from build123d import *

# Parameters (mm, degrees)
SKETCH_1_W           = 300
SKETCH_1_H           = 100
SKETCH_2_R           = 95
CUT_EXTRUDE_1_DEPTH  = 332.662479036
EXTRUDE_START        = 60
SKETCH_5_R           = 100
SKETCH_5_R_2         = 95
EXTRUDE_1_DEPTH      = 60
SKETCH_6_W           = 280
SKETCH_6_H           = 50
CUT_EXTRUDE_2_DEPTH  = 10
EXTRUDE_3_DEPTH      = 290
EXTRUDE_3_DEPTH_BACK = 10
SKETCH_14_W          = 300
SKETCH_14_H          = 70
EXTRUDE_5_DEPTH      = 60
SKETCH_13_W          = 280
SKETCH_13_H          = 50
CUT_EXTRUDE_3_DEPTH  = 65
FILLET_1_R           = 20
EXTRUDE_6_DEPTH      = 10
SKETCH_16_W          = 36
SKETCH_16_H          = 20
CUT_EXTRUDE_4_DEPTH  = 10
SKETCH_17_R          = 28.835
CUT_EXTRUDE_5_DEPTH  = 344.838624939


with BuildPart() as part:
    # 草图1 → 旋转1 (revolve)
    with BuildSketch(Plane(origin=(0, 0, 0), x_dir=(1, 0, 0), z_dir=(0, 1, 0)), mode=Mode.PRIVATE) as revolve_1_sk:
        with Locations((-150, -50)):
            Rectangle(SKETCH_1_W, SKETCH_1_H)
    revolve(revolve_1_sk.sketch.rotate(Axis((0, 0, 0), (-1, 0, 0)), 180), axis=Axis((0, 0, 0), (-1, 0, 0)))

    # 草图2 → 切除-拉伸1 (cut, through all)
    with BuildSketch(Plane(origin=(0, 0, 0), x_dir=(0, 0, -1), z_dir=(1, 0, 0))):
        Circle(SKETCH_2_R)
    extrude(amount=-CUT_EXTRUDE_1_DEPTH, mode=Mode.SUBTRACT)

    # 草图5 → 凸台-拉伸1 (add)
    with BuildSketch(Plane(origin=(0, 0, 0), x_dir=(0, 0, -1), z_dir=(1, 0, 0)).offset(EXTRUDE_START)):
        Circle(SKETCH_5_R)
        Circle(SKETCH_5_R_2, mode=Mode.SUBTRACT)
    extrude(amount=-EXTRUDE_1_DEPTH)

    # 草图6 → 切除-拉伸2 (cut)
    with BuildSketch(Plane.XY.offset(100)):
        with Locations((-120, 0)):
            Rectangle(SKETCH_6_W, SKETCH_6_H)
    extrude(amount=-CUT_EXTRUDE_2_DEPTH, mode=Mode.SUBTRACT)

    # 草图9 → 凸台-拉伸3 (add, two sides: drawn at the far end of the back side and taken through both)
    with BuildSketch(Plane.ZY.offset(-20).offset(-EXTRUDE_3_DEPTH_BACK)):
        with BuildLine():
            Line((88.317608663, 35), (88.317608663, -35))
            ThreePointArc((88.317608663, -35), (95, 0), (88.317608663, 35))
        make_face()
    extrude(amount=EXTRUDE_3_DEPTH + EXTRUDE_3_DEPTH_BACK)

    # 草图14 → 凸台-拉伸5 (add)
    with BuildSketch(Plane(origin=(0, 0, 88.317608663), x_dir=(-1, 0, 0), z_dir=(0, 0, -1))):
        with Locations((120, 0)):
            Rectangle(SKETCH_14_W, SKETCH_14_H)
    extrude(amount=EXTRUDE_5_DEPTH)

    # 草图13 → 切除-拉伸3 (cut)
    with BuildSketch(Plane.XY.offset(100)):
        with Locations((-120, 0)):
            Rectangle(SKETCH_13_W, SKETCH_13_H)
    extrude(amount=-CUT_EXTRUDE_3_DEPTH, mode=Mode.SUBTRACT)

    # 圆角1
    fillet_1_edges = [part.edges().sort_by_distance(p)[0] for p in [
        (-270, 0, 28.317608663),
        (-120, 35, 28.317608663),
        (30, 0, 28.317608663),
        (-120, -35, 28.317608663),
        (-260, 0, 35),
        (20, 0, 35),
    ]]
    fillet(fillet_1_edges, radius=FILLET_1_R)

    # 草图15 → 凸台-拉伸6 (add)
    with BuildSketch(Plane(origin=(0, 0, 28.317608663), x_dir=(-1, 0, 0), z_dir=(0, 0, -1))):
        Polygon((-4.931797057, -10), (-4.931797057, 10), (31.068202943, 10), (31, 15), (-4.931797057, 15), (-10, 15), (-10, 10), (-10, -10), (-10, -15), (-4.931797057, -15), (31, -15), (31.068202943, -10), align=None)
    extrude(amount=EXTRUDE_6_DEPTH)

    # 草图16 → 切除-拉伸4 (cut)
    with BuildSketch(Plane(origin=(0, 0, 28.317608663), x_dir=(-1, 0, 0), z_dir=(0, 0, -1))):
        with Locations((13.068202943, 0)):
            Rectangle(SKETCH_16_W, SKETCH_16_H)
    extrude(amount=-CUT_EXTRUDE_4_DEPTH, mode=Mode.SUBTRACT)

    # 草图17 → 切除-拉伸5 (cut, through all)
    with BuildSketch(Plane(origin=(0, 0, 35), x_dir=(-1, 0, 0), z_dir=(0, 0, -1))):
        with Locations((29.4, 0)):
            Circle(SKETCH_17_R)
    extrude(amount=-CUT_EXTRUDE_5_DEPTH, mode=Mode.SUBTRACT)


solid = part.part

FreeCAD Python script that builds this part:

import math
import FreeCAD as App
import Part
import Sketcher

V = App.Vector


def edges_at(feature, points):
    """Names of the edges that pass closest to the given points."""
    edges = feature.Shape.Edges
    near = lambda p: min(range(len(edges)), key=lambda i: edges[i].distToShape(Part.Vertex(*p))[0])
    return sorted({f"Edge{near(p) + 1}" for p in points})

doc = App.newDocument("Part")
params = doc.addObject("Spreadsheet::Sheet", "Params")
for row, (alias, value) in enumerate([
    ("sketch1_width", "300 mm"),
    ("sketch1_height", "100 mm"),
    ("revolution_angle", "360 deg"),
    ("sketch2_diameter", "190 mm"),
    ("sketch3_diameter", "200 mm"),
    ("sketch3_diameter2", "190 mm"),
    ("pad1_length", "60 mm"),
    ("sketch4_width", "280 mm"),
    ("sketch4_height", "50 mm"),
    ("pocket2_length", "10 mm"),
    ("sketch5_radius", "95 mm"),
    ("sketch5_width", "70 mm"),
    ("pad2_length", "290 mm"),
    ("pad2_length2", "10 mm"),
    ("sketch6_width", "300 mm"),
    ("sketch6_height", "70 mm"),
    ("pad3_length", "60 mm"),
    ("sketch7_width", "280 mm"),
    ("sketch7_height", "50 mm"),
    ("pocket3_length", "65 mm"),
    ("fillet_radius", "20 mm"),
    ("sketch8_width", "36 mm"),
    ("sketch8_width2", "41 mm"),
    ("sketch8_height", "20 mm"),
    ("sketch8_height2", "30 mm"),
    ("pad4_length", "10 mm"),
    ("sketch9_width", "36 mm"),
    ("sketch9_height", "20 mm"),
    ("pocket4_length", "10 mm"),
    ("sketch10_diameter", "57.67 mm"),
], start=1):
    params.set(f"A{row}", alias)
    params.set(f"B{row}", "=" + value)
    params.setAlias(f"B{row}", alias)

body = doc.addObject("PartDesign::Body", "Body")

sketch1 = doc.addObject("Sketcher::SketchObject", "Sketch")
body.addObject(sketch1)
sketch1.AttachmentSupport = (doc.XZ_Plane, [""])
sketch1.MapMode = "FlatFace"
sketch1.addGeometry(Part.LineSegment(V(-300, 0, 0), V(-300, 100, 0)), False)
sketch1.addGeometry(Part.LineSegment(V(-300, 100, 0), V(0, 100, 0)), False)
sketch1.addGeometry(Part.LineSegment(V(0, 100, 0), V(0, 0, 0)), False)
sketch1.addGeometry(Part.LineSegment(V(0, 0, 0), V(-300, 0, 0)), False)
sketch1.addConstraint(Sketcher.Constraint("Coincident", 0, 2, 1, 1))
sketch1.addConstraint(Sketcher.Constraint("Coincident", 1, 2, 2, 1))
sketch1.addConstraint(Sketcher.Constraint("Coincident", 2, 2, 3, 1))
sketch1.addConstraint(Sketcher.Constraint("Coincident", 3, 2, 0, 1))
sketch1.addConstraint(Sketcher.Constraint("Vertical", 0))
sketch1.addConstraint(Sketcher.Constraint("Horizontal", 1))
sketch1.addConstraint(Sketcher.Constraint("Vertical", 2))
sketch1.addConstraint(Sketcher.Constraint("Horizontal", 3))
sketch1.addConstraint(Sketcher.Constraint("Coincident", 2, 2, -1, 1))
sketch1.addConstraint(Sketcher.Constraint("DistanceX", 1, 1, 1, 2, 300.0))
sketch1.addConstraint(Sketcher.Constraint("DistanceY", 0, 1, 0, 2, 100.0))
sketch1.setExpression("Constraints[9]", "Params.sketch1_width")
sketch1.setExpression("Constraints[10]", "Params.sketch1_height")
revolution = doc.addObject("PartDesign::Revolution", "Revolution")
body.addObject(revolution)
revolution.Profile = sketch1
revolution.ReferenceAxis = (sketch1, ["H_Axis"])
revolution.setExpression("Angle", "Params.revolution_angle")

sketch2 = doc.addObject("Sketcher::SketchObject", "Sketch001")
body.addObject(sketch2)
sketch2.AttachmentSupport = (doc.YZ_Plane, [""])
sketch2.MapMode = "FlatFace"
sketch2.addGeometry(Part.Circle(V(0, 0, 0), V(0, 0, 1), 95), False)
sketch2.addConstraint(Sketcher.Constraint("Coincident", 0, 3, -1, 1))
sketch2.addConstraint(Sketcher.Constraint("Diameter", 0, 190.0))
sketch2.setExpression("Constraints[1]", "Params.sketch2_diameter")
pocket1 = doc.addObject("PartDesign::Pocket", "Pocket")
body.addObject(pocket1)
pocket1.Profile = sketch2
pocket1.Type = "ThroughAll"

sketch3 = doc.addObject("Sketcher::SketchObject", "Sketch002")
body.addObject(sketch3)
sketch3.AttachmentSupport = (doc.YZ_Plane, [""])
sketch3.MapMode = "FlatFace"
sketch3.AttachmentOffset = App.Placement(V(0, 0, 60), App.Rotation())
sketch3.addGeometry(Part.Circle(V(0, 0, 0), V(0, 0, 1), 100), False)
sketch3.addGeometry(Part.Circle(V(0, 0, 0), V(0, 0, 1), 95), False)
sketch3.addConstraint(Sketcher.Constraint("Coincident", 0, 3, -1, 1))
sketch3.addConstraint(Sketcher.Constraint("Coincident", 1, 3, -1, 1))
sketch3.addConstraint(Sketcher.Constraint("Diameter", 0, 200.0))
sketch3.addConstraint(Sketcher.Constraint("Diameter", 1, 190.0))
sketch3.setExpression("Constraints[2]", "Params.sketch3_diameter")
sketch3.setExpression("Constraints[3]", "Params.sketch3_diameter2")
pad1 = doc.addObject("PartDesign::Pad", "Pad")
body.addObject(pad1)
pad1.Profile = sketch3
pad1.setExpression("Length", "Params.pad1_length")
pad1.Reversed = True

sketch4 = doc.addObject("Sketcher::SketchObject", "Sketch003")
body.addObject(sketch4)
sketch4.AttachmentSupport = (doc.XY_Plane, [""])
sketch4.MapMode = "FlatFace"
sketch4.AttachmentOffset = App.Placement(V(0, 0, 100), App.Rotation())
sketch4.addGeometry(Part.LineSegment(V(-260, 25, 0), V(-260, -25, 0)), False)
sketch4.addGeometry(Part.LineSegment(V(-260, -25, 0), V(20, -25, 0)), False)
sketch4.addGeometry(Part.LineSegment(V(20, -25, 0), V(20, 25, 0)), False)
sketch4.addGeometry(Part.LineSegment(V(20, 25, 0), V(-260, 25, 0)), False)
sketch4.addConstraint(Sketcher.Constraint("Coincident", 0, 2, 1, 1))
sketch4.addConstraint(Sketcher.Constraint("Coincident", 1, 2, 2, 1))
sketch4.addConstraint(Sketcher.Constraint("Coincident", 2, 2, 3, 1))
sketch4.addConstraint(Sketcher.Constraint("Coincident", 3, 2, 0, 1))
sketch4.addConstraint(Sketcher.Constraint("Vertical", 0))
sketch4.addConstraint(Sketcher.Constraint("Horizontal", 1))
sketch4.addConstraint(Sketcher.Constraint("Vertical", 2))
sketch4.addConstraint(Sketcher.Constraint("Horizontal", 3))
sketch4.addConstraint(Sketcher.Constraint("DistanceX", 1, 1, 1, 2, 280.0))
sketch4.addConstraint(Sketcher.Constraint("DistanceY", 0, 2, 0, 1, 50.0))
sketch4.addConstraint(Sketcher.Constraint("DistanceX", 0, 2, -1, 1, 260.0))
sketch4.addConstraint(Sketcher.Constraint("DistanceY", 0, 2, -1, 1, 25.0))
sketch4.setExpression("Constraints[8]", "Params.sketch4_width")
sketch4.setExpression("Constraints[9]", "Params.sketch4_height")
pocket2 = doc.addObject("PartDesign::Pocket", "Pocket001")
body.addObject(pocket2)
pocket2.Profile = sketch4
pocket2.setExpression("Length", "Params.pocket2_length")

sketch5 = doc.addObject("Sketcher::SketchObject", "Sketch004")
body.addObject(sketch5)
sketch5.AttachmentSupport = (doc.YZ_Plane, [""])
sketch5.MapMode = "FlatFace"
sketch5.AttachmentOffset = App.Placement(V(0, 0, 20), App.Rotation())
sketch5.addGeometry(Part.LineSegment(V(35, 88, 0), V(-35, 88, 0)), False)
sketch5.addGeometry(Part.ArcOfCircle(Part.Circle(V(0, 0, 0), V(0, 0, 1), 95), math.radians(68), math.radians(112)), False)
sketch5.addConstraint(Sketcher.Constraint("Coincident", 0, 1, 1, 1))
sketch5.addConstraint(Sketcher.Constraint("Coincident", 1, 2, 0, 2))
sketch5.addConstraint(Sketcher.Constraint("Horizontal", 0))
sketch5.addConstraint(Sketcher.Constraint("Coincident", 1, 3, -1, 1))
sketch5.addConstraint(Sketcher.Constraint("Radius", 1, 95.0))
sketch5.addConstraint(Sketcher.Constraint("DistanceX", 0, 2, 0, 1, 70.0))
sketch5.setExpression("Constraints[4]", "Params.sketch5_radius")
sketch5.setExpression("Constraints[5]", "Params.sketch5_width")
pad2 = doc.addObject("PartDesign::Pad", "Pad001")
body.addObject(pad2)
pad2.Profile = sketch5
pad2.Type = "TwoLengths"
pad2.setExpression("Length", "Params.pad2_length")
pad2.setExpression("Length2", "Params.pad2_length2")
pad2.Reversed = True

sketch6 = doc.addObject("Sketcher::SketchObject", "Sketch005")
body.addObject(sketch6)
sketch6.AttachmentSupport = (doc.XY_Plane, [""])
sketch6.MapMode = "FlatFace"
sketch6.AttachmentOffset = App.Placement(V(0, 0, 88.317609), App.Rotation())
sketch6.addGeometry(Part.LineSegment(V(30, 35, 0), V(30, -35, 0)), False)
sketch6.addGeometry(Part.LineSegment(V(30, -35, 0), V(-270, -35, 0)), False)
sketch6.addGeometry(Part.LineSegment(V(-270, -35, 0), V(-270, 35, 0)), False)
sketch6.addGeometry(Part.LineSegment(V(-270, 35, 0), V(30, 35, 0)), False)
sketch6.addConstraint(Sketcher.Constraint("Coincident", 0, 2, 1, 1))
sketch6.addConstraint(Sketcher.Constraint("Coincident", 1, 2, 2, 1))
sketch6.addConstraint(Sketcher.Constraint("Coincident", 2, 2, 3, 1))
sketch6.addConstraint(Sketcher.Constraint("Coincident", 3, 2, 0, 1))
sketch6.addConstraint(Sketcher.Constraint("Vertical", 0))
sketch6.addConstraint(Sketcher.Constraint("Horizontal", 1))
sketch6.addConstraint(Sketcher.Constraint("Vertical", 2))
sketch6.addConstraint(Sketcher.Constraint("Horizontal", 3))
sketch6.addConstraint(Sketcher.Constraint("DistanceX", 1, 2, 1, 1, 300.0))
sketch6.addConstraint(Sketcher.Constraint("DistanceY", 0, 2, 0, 1, 70.0))
sketch6.addConstraint(Sketcher.Constraint("DistanceX", -1, 1, 0, 2, 30.0))
sketch6.addConstraint(Sketcher.Constraint("DistanceY", 0, 2, -1, 1, 35.0))
sketch6.setExpression("Constraints[8]", "Params.sketch6_width")
sketch6.setExpression("Constraints[9]", "Params.sketch6_height")
pad3 = doc.addObject("PartDesign::Pad", "Pad002")
body.addObject(pad3)
pad3.Profile = sketch6
pad3.setExpression("Length", "Params.pad3_length")
pad3.Reversed = True

sketch7 = doc.addObject("Sketcher::SketchObject", "Sketch006")
body.addObject(sketch7)
sketch7.AttachmentSupport = (doc.XY_Plane, [""])
sketch7.MapMode = "FlatFace"
sketch7.AttachmentOffset = App.Placement(V(0, 0, 100), App.Rotation())
sketch7.addGeometry(Part.LineSegment(V(-260, 25, 0), V(-260, -25, 0)), False)
sketch7.addGeometry(Part.LineSegment(V(-260, -25, 0), V(20, -25, 0)), False)
sketch7.addGeometry(Part.LineSegment(V(20, -25, 0), V(20, 25, 0)), False)
sketch7.addGeometry(Part.LineSegment(V(20, 25, 0), V(-260, 25, 0)), False)
sketch7.addConstraint(Sketcher.Constraint("Coincident", 0, 2, 1, 1))
sketch7.addConstraint(Sketcher.Constraint("Coincident", 1, 2, 2, 1))
sketch7.addConstraint(Sketcher.Constraint("Coincident", 2, 2, 3, 1))
sketch7.addConstraint(Sketcher.Constraint("Coincident", 3, 2, 0, 1))
sketch7.addConstraint(Sketcher.Constraint("Vertical", 0))
sketch7.addConstraint(Sketcher.Constraint("Horizontal", 1))
sketch7.addConstraint(Sketcher.Constraint("Vertical", 2))
sketch7.addConstraint(Sketcher.Constraint("Horizontal", 3))
sketch7.addConstraint(Sketcher.Constraint("DistanceX", 1, 1, 1, 2, 280.0))
sketch7.addConstraint(Sketcher.Constraint("DistanceY", 0, 2, 0, 1, 50.0))
sketch7.addConstraint(Sketcher.Constraint("DistanceX", 0, 2, -1, 1, 260.0))
sketch7.addConstraint(Sketcher.Constraint("DistanceY", 0, 2, -1, 1, 25.0))
sketch7.setExpression("Constraints[8]", "Params.sketch7_width")
sketch7.setExpression("Constraints[9]", "Params.sketch7_height")
pocket3 = doc.addObject("PartDesign::Pocket", "Pocket002")
body.addObject(pocket3)
pocket3.Profile = sketch7
pocket3.setExpression("Length", "Params.pocket3_length")
doc.recompute()

fillet = doc.addObject("PartDesign::Fillet", "Fillet")
body.addObject(fillet)
fillet.Base = (pocket3, edges_at(pocket3, [
    (-270, 0, 28.318),
    (-120, 35, 28.318),
    (30, 0, 28.318),
    (-120, -35, 28.318),
    (-260, 0, 35),
    (20, 0, 35),
]))
fillet.setExpression("Radius", "Params.fillet_radius")

sketch8 = doc.addObject("Sketcher::SketchObject", "Sketch007")
body.addObject(sketch8)
sketch8.AttachmentSupport = (doc.XY_Plane, [""])
sketch8.MapMode = "FlatFace"
sketch8.AttachmentOffset = App.Placement(V(0, 0, 28.317609), App.Rotation())
sketch8.addGeometry(Part.LineSegment(V(4.931797, -10, 0), V(4.931797, 10, 0)), False)
sketch8.addGeometry(Part.LineSegment(V(4.931797, 10, 0), V(-31.068203, 10, 0)), False)
sketch8.addGeometry(Part.LineSegment(V(-31.068203, 10, 0), V(-31, 15, 0)), False)
sketch8.addGeometry(Part.LineSegment(V(-31, 15, 0), V(10, 15, 0)), False)
sketch8.addGeometry(Part.LineSegment(V(10, 15, 0), V(10, -15, 0)), False)
sketch8.addGeometry(Part.LineSegment(V(10, -15, 0), V(-31, -15, 0)), False)
sketch8.addGeometry(Part.LineSegment(V(-31, -15, 0), V(-31.068203, -10, 0)), False)
sketch8.addGeometry(Part.LineSegment(V(-31.068203, -10, 0), V(4.931797, -10, 0)), False)
sketch8.addConstraint(Sketcher.Constraint("Coincident", 0, 2, 1, 1))
sketch8.addConstraint(Sketcher.Constraint("Coincident", 1, 2, 2, 1))
sketch8.addConstraint(Sketcher.Constraint("Coincident", 2, 2, 3, 1))
sketch8.addConstraint(Sketcher.Constraint("Coincident", 3, 2, 4, 1))
sketch8.addConstraint(Sketcher.Constraint("Coincident", 4, 2, 5, 1))
sketch8.addConstraint(Sketcher.Constraint("Coincident", 5, 2, 6, 1))
sketch8.addConstraint(Sketcher.Constraint("Coincident", 6, 2, 7, 1))
sketch8.addConstraint(Sketcher.Constraint("Coincident", 7, 2, 0, 1))
sketch8.addConstraint(Sketcher.Constraint("Vertical", 0))
sketch8.addConstraint(Sketcher.Constraint("Horizontal", 1))
sketch8.addConstraint(Sketcher.Constraint("Horizontal", 3))
sketch8.addConstraint(Sketcher.Constraint("Vertical", 4))
sketch8.addConstraint(Sketcher.Constraint("Horizontal", 5))
sketch8.addConstraint(Sketcher.Constraint("Horizontal", 7))
sketch8.addConstraint(Sketcher.Constraint("Symmetric", 2, 2, 5, 2, -1))
sketch8.addConstraint(Sketcher.Constraint("Symmetric", 1, 2, 6, 2, -1))
sketch8.addConstraint(Sketcher.Constraint("DistanceX", 1, 2, 1, 1, 36.0))
sketch8.addConstraint(Sketcher.Constraint("DistanceX", 3, 1, 3, 2, 41.0))
sketch8.addConstraint(Sketcher.Constraint("DistanceY", 0, 1, 0, 2, 20.0))
sketch8.addConstraint(Sketcher.Constraint("DistanceY", 4, 2, 4, 1, 30.0))
sketch8.addConstraint(Sketcher.Constraint("DistanceX", 2, 2, -1, 1, 31.0))
sketch8.addConstraint(Sketcher.Constraint("Distance", 2, 5.000465))
sketch8.setExpression("Constraints[16]", "Params.sketch8_width")
sketch8.setExpression("Constraints[17]", "Params.sketch8_width2")
sketch8.setExpression("Constraints[18]", "Params.sketch8_height")
sketch8.setExpression("Constraints[19]", "Params.sketch8_height2")
pad4 = doc.addObject("PartDesign::Pad", "Pad003")
body.addObject(pad4)
pad4.Profile = sketch8
pad4.setExpression("Length", "Params.pad4_length")
pad4.Reversed = True

sketch9 = doc.addObject("Sketcher::SketchObject", "Sketch008")
body.addObject(sketch9)
sketch9.AttachmentSupport = (doc.XY_Plane, [""])
sketch9.MapMode = "FlatFace"
sketch9.AttachmentOffset = App.Placement(V(0, 0, 28.317609), App.Rotation())
sketch9.addGeometry(Part.LineSegment(V(5, 10, 0), V(5, -10, 0)), False)
sketch9.addGeometry(Part.LineSegment(V(5, -10, 0), V(-31, -10, 0)), False)
sketch9.addGeometry(Part.LineSegment(V(-31, -10, 0), V(-31, 10, 0)), False)
sketch9.addGeometry(Part.LineSegment(V(-31, 10, 0), V(5, 10, 0)), False)
sketch9.addConstraint(Sketcher.Constraint("Coincident", 0, 2, 1, 1))
sketch9.addConstraint(Sketcher.Constraint("Coincident", 1, 2, 2, 1))
sketch9.addConstraint(Sketcher.Constraint("Coincident", 2, 2, 3, 1))
sketch9.addConstraint(Sketcher.Constraint("Coincident", 3, 2, 0, 1))
sketch9.addConstraint(Sketcher.Constraint("Vertical", 0))
sketch9.addConstraint(Sketcher.Constraint("Horizontal", 1))
sketch9.addConstraint(Sketcher.Constraint("Vertical", 2))
sketch9.addConstraint(Sketcher.Constraint("Horizontal", 3))
sketch9.addConstraint(Sketcher.Constraint("DistanceX", 1, 2, 1, 1, 36.0))
sketch9.addConstraint(Sketcher.Constraint("DistanceY", 0, 2, 0, 1, 20.0))
sketch9.addConstraint(Sketcher.Constraint("DistanceY", 0, 2, -1, 1, 10.0))
sketch9.addConstraint(Sketcher.Constraint("DistanceX", -1, 1, 0, 2, 4.931797))
sketch9.setExpression("Constraints[8]", "Params.sketch9_width")
sketch9.setExpression("Constraints[9]", "Params.sketch9_height")
pocket4 = doc.addObject("PartDesign::Pocket", "Pocket003")
body.addObject(pocket4)
pocket4.Profile = sketch9
pocket4.setExpression("Length", "Params.pocket4_length")
pocket4.Reversed = True

sketch10 = doc.addObject("Sketcher::SketchObject", "Sketch009")
body.addObject(sketch10)
sketch10.AttachmentSupport = (doc.XY_Plane, [""])
sketch10.MapMode = "FlatFace"
sketch10.AttachmentOffset = App.Placement(V(0, 0, 35), App.Rotation())
sketch10.addGeometry(Part.Circle(V(-29, 0, 0), V(0, 0, 1), 29), False)
sketch10.addConstraint(Sketcher.Constraint("PointOnObject", 0, 3, -1))
sketch10.addConstraint(Sketcher.Constraint("Diameter", 0, 57.67))
sketch10.addConstraint(Sketcher.Constraint("DistanceX", 0, 3, -1, 1, 29.4))
sketch10.setExpression("Constraints[1]", "Params.sketch10_diameter")
pocket5 = doc.addObject("PartDesign::Pocket", "Pocket004")
body.addObject(pocket5)
pocket5.Profile = sketch10
pocket5.Type = "ThroughAll"
pocket5.Reversed = True

doc.recompute()
